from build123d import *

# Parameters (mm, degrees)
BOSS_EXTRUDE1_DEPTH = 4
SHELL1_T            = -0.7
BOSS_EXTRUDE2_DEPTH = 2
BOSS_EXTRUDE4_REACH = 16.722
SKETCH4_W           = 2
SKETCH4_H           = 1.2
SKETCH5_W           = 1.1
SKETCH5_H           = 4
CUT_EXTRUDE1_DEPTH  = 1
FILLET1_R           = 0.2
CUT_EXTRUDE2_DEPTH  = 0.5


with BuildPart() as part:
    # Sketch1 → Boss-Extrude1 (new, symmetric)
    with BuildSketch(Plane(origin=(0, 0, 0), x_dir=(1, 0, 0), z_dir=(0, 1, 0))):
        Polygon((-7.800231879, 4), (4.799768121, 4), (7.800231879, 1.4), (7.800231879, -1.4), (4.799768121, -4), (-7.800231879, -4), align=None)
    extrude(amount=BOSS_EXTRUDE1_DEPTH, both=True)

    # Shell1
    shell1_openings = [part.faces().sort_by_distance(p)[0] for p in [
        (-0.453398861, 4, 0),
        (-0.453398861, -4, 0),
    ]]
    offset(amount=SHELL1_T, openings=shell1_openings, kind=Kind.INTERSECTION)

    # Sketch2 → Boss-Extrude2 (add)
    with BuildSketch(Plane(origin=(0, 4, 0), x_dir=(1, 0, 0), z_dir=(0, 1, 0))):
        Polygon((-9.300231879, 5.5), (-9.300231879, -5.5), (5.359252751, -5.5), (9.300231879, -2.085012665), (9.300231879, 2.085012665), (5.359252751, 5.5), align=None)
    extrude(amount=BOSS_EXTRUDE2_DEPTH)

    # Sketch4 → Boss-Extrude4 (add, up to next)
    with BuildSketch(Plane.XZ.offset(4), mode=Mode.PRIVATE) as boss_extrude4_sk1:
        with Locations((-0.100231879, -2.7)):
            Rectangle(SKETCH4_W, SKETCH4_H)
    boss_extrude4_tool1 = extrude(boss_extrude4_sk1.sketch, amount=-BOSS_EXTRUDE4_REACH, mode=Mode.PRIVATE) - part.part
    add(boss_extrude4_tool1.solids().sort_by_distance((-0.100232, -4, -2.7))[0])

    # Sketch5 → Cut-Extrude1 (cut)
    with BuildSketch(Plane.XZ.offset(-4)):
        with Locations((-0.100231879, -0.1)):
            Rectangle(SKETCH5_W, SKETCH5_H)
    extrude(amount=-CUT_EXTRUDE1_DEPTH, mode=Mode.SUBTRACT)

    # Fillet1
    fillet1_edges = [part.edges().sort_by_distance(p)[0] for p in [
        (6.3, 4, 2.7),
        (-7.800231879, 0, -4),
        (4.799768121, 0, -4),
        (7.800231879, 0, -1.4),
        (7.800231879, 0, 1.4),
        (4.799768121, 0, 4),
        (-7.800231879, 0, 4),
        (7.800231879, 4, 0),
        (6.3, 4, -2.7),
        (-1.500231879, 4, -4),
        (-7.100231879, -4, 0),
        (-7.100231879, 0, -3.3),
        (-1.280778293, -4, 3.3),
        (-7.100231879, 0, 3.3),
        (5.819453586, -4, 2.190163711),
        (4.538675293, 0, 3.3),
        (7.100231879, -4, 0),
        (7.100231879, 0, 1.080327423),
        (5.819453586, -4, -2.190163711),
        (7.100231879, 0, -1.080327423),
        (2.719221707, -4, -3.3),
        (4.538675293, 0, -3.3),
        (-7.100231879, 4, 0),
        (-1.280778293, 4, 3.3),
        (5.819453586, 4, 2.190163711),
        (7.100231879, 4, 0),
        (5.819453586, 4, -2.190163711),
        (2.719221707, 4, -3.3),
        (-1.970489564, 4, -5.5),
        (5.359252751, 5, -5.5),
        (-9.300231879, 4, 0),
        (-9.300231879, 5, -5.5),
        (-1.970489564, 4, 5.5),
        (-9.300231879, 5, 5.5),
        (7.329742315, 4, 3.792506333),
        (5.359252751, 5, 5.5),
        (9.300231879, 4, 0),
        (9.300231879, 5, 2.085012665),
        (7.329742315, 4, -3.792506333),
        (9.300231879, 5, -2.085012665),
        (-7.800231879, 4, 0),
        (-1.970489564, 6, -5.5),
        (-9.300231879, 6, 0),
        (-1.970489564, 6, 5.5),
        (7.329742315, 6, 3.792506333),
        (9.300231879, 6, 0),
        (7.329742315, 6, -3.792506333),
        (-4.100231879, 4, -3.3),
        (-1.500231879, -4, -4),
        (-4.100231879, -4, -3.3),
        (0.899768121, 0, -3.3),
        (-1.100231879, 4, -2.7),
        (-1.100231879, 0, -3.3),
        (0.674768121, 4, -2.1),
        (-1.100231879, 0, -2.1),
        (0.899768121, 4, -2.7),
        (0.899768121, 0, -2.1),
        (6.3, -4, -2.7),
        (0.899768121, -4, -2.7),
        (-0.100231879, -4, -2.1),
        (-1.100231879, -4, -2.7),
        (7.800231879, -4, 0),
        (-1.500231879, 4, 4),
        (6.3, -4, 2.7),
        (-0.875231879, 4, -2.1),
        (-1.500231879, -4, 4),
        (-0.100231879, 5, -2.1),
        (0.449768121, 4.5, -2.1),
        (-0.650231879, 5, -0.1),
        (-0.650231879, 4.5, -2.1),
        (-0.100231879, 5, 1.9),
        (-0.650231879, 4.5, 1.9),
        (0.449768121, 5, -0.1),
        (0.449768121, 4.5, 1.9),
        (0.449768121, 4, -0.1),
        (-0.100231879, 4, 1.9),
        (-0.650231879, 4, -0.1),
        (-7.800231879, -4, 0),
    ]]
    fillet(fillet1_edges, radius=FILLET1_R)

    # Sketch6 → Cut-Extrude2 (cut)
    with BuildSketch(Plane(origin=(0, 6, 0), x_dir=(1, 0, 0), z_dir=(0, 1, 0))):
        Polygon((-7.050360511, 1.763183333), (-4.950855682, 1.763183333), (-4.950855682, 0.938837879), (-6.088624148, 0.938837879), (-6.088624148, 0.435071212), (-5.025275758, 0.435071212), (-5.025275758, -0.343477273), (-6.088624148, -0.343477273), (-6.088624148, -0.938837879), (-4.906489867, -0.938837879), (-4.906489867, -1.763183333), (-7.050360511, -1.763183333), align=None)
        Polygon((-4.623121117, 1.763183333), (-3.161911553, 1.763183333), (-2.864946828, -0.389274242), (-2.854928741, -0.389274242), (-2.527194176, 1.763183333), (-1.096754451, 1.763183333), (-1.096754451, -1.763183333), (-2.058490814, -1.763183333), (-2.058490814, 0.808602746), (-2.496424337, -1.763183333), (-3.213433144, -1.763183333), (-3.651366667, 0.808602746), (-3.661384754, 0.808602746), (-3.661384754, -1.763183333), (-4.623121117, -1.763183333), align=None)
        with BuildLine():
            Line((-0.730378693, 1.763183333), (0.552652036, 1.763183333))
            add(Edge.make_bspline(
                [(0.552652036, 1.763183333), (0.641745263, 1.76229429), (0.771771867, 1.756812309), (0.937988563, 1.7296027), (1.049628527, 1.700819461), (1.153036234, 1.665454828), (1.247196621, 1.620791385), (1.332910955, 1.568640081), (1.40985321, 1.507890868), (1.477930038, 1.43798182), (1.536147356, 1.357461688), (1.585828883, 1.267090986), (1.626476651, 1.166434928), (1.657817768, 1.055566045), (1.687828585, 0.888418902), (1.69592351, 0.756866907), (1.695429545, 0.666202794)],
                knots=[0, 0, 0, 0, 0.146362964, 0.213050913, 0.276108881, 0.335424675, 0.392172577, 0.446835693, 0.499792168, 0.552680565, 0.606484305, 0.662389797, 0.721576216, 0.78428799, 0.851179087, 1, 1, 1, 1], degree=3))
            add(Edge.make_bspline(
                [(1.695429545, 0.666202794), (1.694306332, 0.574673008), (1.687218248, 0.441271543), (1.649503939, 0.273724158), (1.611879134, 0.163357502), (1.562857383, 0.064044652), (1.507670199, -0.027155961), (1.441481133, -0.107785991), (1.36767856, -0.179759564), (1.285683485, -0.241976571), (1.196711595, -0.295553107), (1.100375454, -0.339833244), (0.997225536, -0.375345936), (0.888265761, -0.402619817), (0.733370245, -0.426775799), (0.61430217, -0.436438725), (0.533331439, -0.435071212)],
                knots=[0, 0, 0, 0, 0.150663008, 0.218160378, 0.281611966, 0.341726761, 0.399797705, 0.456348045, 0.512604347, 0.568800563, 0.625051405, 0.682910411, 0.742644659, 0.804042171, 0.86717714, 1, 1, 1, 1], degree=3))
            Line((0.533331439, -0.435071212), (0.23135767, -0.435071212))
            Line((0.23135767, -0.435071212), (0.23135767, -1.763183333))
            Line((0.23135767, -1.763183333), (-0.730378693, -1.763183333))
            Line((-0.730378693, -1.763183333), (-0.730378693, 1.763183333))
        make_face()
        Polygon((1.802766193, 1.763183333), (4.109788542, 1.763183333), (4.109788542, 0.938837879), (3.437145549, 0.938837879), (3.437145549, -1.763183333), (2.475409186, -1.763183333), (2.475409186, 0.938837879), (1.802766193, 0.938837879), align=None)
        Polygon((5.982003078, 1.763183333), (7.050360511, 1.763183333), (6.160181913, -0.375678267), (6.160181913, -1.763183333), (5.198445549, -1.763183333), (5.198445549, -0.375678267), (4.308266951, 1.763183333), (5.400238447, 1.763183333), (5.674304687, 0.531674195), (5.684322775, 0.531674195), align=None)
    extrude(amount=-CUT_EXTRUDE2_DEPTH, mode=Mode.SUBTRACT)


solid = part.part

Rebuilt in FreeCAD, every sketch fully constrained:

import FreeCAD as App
import Part
import Sketcher
from FreeCAD import Vector
Q = App.Units.Quantity


def faces_at(feature, points):
    """Names of the faces that lie closest to the given points."""
    faces = feature.Shape.Faces
    near = lambda p: min(range(len(faces)), key=lambda i: faces[i].distToShape(Part.Vertex(*p))[0])
    return sorted({f"Face{near(p) + 1}" for p in points})


def add_polygon(sketch, points):
    """Adds a closed chain of lines whose ends are joined by coincident constraints."""
    first, n = sketch.GeometryCount, len(points)
    for a, b in zip(points, points[1:] + points[:1]):
        sketch.addGeometry(Part.LineSegment(App.Vector(*a, 0), App.Vector(*b, 0)), False)
    for i in range(n):
        sketch.addConstraint(Sketcher.Constraint("Coincident", first + i, 2, first + (i + 1) % n, 1))

doc = App.newDocument("Part")
params = doc.addObject("Spreadsheet::Sheet", "Params")
for row, (alias, value) in enumerate([
    ("sketch1_height", "8 mm"),
    ("sketch1_width", "12.6 mm"),
    ("sketch1_height2", "2.8 mm"),
    ("pad1_length", "8 mm"),
    ("thickness_wall", "0.7 mm"),
    ("sketch2_height", "11 mm"),
    ("pad2_length", "2 mm"),
    ("sketch3_width", "2 mm"),
    ("sketch3_height", "1.2 mm"),
    ("sketch4_height", "4 mm"),
    ("sketch4_width", "1.1 mm"),
    ("pocket1_length", "1 mm"),
    ("fillet_radius", "0.2 mm"),
    ("pocket2_length", "0.5 mm"),
], start=1):
    params.set(f"A{row}", alias)
    params.set(f"B{row}", "=" + value)
    params.setAlias(f"B{row}", alias)

body = doc.addObject("PartDesign::Body", "Body")

sketch1 = body.newObject("Sketcher::SketchObject", "Sketch")
sketch1.AttachmentSupport = (doc.getObject("XZ_Plane"), [""])
sketch1.MapMode = "FlatFace"
add_polygon(sketch1, [(4.8, -4), (-7.8, -4), (-7.8, 4), (4.8, 4), (7.8, 1.4), (7.8, -1.4)])
sketch1.addConstraint([
    Sketcher.Constraint("Horizontal", 0),
    Sketcher.Constraint("Vertical", 1),
    Sketcher.Constraint("Horizontal", 2),
    Sketcher.Constraint("Vertical", 4),
    Sketcher.Constraint("Symmetric", 2, 2, 5, 2, -1),
    Sketcher.Constraint("Equal", 3, 5),
    Sketcher.Constraint("DistanceY", 1, 1, 1, 2, Q("8 mm")),
    Sketcher.Constraint("DistanceX", 0, 2, 0, 1, Q("12.6 mm")),
    Sketcher.Constraint("DistanceY", 4, 2, 4, 1, Q("2.8 mm")),
    Sketcher.Constraint("Angle", 3, Q("-40.91 deg")),
    Sketcher.Constraint("DistanceX", 0, 2, -1, 1, Q("7.800232 mm")),
])
sketch1.setExpression("Constraints[12]", "Params.sketch1_height")
sketch1.setExpression("Constraints[13]", "Params.sketch1_width")
sketch1.setExpression("Constraints[14]", "Params.sketch1_height2")
pad1 = body.newObject("PartDesign::Pad", "Pad")
pad1.Profile = sketch1
pad1.setExpression("Length", "Params.pad1_length")
pad1.Midplane = True
doc.recompute()

thickness = body.newObject("PartDesign::Thickness", "Thickness")
thickness.Base = (pad1, faces_at(pad1, [(0, 4, 0), (0, -4, 0)]))
thickness.setExpression("Value", "Params.thickness_wall")
thickness.Reversed = True
thickness.Join = "Intersection"

sketch2 = body.newObject("Sketcher::SketchObject", "Sketch001")
sketch2.AttachmentSupport = (doc.getObject("XZ_Plane"), [""])
sketch2.MapMode = "FlatFace"
sketch2.AttachmentOffset = App.Placement(Vector(0, 0, -4), App.Rotation())
add_polygon(sketch2, [(-9.3, -5.5), (-9.3, 5.5), (5.4, 5.5), (9.3, 2.1), (9.3, -2.1), (5.4, -5.5)])
sketch2.addConstraint([
    Sketcher.Constraint("Vertical", 0),
    Sketcher.Constraint("Horizontal", 1),
    Sketcher.Constraint("Vertical", 3),
    Sketcher.Constraint("Horizontal", 5),
    Sketcher.Constraint("Symmetric", 1, 2, 4, 2, -1),
    Sketcher.Constraint("Equal", 2, 4),
    Sketcher.Constraint("DistanceY", 0, 1, 0, 2, Q("11 mm")),
    Sketcher.Constraint("Angle", 2, Q("-40.91 deg")),
    Sketcher.Constraint("DistanceX", 1, 1, 1, 2, Q("14.659485 mm")),
    Sketcher.Constraint("DistanceY", 3, 2, 3, 1, Q("4.170025 mm")),
    Sketcher.Constraint("DistanceX", 0, 2, -1, 1, Q("9.300232 mm")),
])
sketch2.setExpression("Constraints[12]", "Params.sketch2_height")
pad2 = body.newObject("PartDesign::Pad", "Pad001")
pad2.Profile = sketch2
pad2.setExpression("Length", "Params.pad2_length")
pad2.Reversed = True

sketch3 = body.newObject("Sketcher::SketchObject", "Sketch002")
sketch3.AttachmentSupport = (doc.getObject("XZ_Plane"), [""])
sketch3.MapMode = "FlatFace"
sketch3.AttachmentOffset = App.Placement(Vector(0, 0, 4), App.Rotation())
add_polygon(sketch3, [(-1.1, -2.1), (-1.1, -3.3), (0.9, -3.3), (0.9, -2.1)])
sketch3.addConstraint([
    Sketcher.Constraint("Vertical", 0),
    Sketcher.Constraint("Horizontal", 1),
    Sketcher.Constraint("Vertical", 2),
    Sketcher.Constraint("Horizontal", 3),
    Sketcher.Constraint("DistanceX", 1, 1, 1, 2, Q("2 mm")),
    Sketcher.Constraint("DistanceY", 0, 2, 0, 1, Q("1.2 mm")),
    Sketcher.Constraint("DistanceY", 0, 2, -1, 1, Q("3.3 mm")),
    Sketcher.Constraint("DistanceX", 0, 2, -1, 1, Q("1.100232 mm")),
])
sketch3.setExpression("Constraints[8]", "Params.sketch3_width")
sketch3.setExpression("Constraints[9]", "Params.sketch3_height")
pad3 = body.newObject("PartDesign::Pad", "Pad002")
pad3.Profile = sketch3
pad3.Type = "UpToFirst"
pad3.Reversed = True

sketch4 = body.newObject("Sketcher::SketchObject", "Sketch003")
sketch4.AttachmentSupport = (doc.getObject("XZ_Plane"), [""])
sketch4.MapMode = "FlatFace"
sketch4.AttachmentOffset = App.Placement(Vector(0, 0, -4), App.Rotation())
add_polygon(sketch4, [(-0.7, 1.9), (-0.7, -2.1), (0.4, -2.1), (0.4, 1.9)])
sketch4.addConstraint([
    Sketcher.Constraint("Vertical", 0),
    Sketcher.Constraint("Horizontal", 1),
    Sketcher.Constraint("Vertical", 2),
    Sketcher.Constraint("Horizontal", 3),
    Sketcher.Constraint("DistanceY", 0, 2, 0, 1, Q("4 mm")),
    Sketcher.Constraint("DistanceX", 1, 1, 1, 2, Q("1.1 mm")),
    Sketcher.Constraint("DistanceY", 0, 2, -1, 1, Q("2.1 mm")),
    Sketcher.Constraint("DistanceX", 0, 2, -1, 1, Q("0.650232 mm")),
])
sketch4.setExpression("Constraints[8]", "Params.sketch4_height")
sketch4.setExpression("Constraints[9]", "Params.sketch4_width")
pocket1 = body.newObject("PartDesign::Pocket", "Pocket")
pocket1.Profile = sketch4
pocket1.setExpression("Length", "Params.pocket1_length")
doc.recompute()

fillet = body.newObject("PartDesign::Fillet", "Fillet")
fillet.Base = (pocket1, ["Edge1"])
fillet.UseAllEdges = True
fillet.setExpression("Radius", "Params.fillet_radius")

sketch5 = body.newObject("Sketcher::SketchObject", "Sketch004")
sketch5.AttachmentSupport = (doc.getObject("XZ_Plane"), [""])
sketch5.MapMode = "FlatFace"
sketch5.AttachmentOffset = App.Placement(Vector(0, 0, -6), App.Rotation())
add_polygon(sketch5, [(-4.950856, -1.763183), (-7.050361, -1.763183), (-7.050361, 1.763183), (-4.90649, 1.763183), (-4.90649, 0.938838), (-6.088624, 0.938838), (-6.088624, 0.343477), (-5.025276, 0.343477), (-5.025276, -0.435071), (-6.088624, -0.435071), (-6.088624, -0.938838), (-4.950856, -0.938838)])
add_polygon(sketch5, [(-3.161912, -1.763183), (-4.623121, -1.763183), (-4.623121, 1.763183), (-3.661385, 1.763183), (-3.661385, -0.808603), (-3.651367, -0.808603), (-3.213433, 1.763183), (-2.496424, 1.763183), (-2.058491, -0.808603), (-2.058491, 1.763183), (-1.096754, 1.763183), (-1.096754, -1.763183), (-2.527194, -1.763183), (-2.854929, 0.389274), (-2.864947, 0.389274)])
sketch5.addGeometry(Part.LineSegment(Vector(0.552652, -1.763183, 0), Vector(-0.730379, -1.763183, 0)), False)
sketch5.addGeometry(Part.LineSegment(Vector(-0.730379, -1.763183, 0), Vector(-0.730379, 1.763183, 0)), False)
sketch5.addGeometry(Part.LineSegment(Vector(-0.730379, 1.763183, 0), Vector(0.231358, 1.763183, 0)), False)
sketch5.addGeometry(Part.LineSegment(Vector(0.231358, 1.763183, 0), Vector(0.231358, 0.435071, 0)), False)
sketch5.addGeometry(Part.LineSegment(Vector(0.231358, 0.435071, 0), Vector(0.533331, 0.435071, 0)), False)
sketch5.addGeometry(Part.BSplineCurve([Vector(1.69543, -0.666203, 0), Vector(1.694306, -0.574673, 0), Vector(1.687218, -0.441272, 0), Vector(1.649504, -0.273724, 0), Vector(1.611879, -0.163358, 0), Vector(1.562857, -0.064045, 0), Vector(1.50767, 0.027156, 0), Vector(1.441481, 0.107786, 0), Vector(1.367679, 0.17976, 0), Vector(1.285683, 0.241977, 0), Vector(1.196712, 0.295553, 0), Vector(1.100375, 0.339833, 0), Vector(0.997226, 0.375346, 0), Vector(0.888266, 0.40262, 0), Vector(0.73337, 0.426776, 0), Vector(0.614302, 0.436439, 0), Vector(0.533331, 0.435071, 0)], [4, 1, 1, 1, 1, 1, 1, 1, 1, 1, 1, 1, 1, 1, 4], [0, 0.150663008, 0.218160378, 0.281611966, 0.341726761, 0.399797705, 0.456348045, 0.512604347, 0.568800563, 0.625051405, 0.682910411, 0.742644659, 0.804042171, 0.86717714, 1], False, 3, [1, 1, 1, 1, 1, 1, 1, 1, 1, 1, 1, 1, 1, 1, 1, 1, 1], False), False)
sketch5.addGeometry(Part.BSplineCurve([Vector(0.552652, -1.763183, 0), Vector(0.641745, -1.762294, 0), Vector(0.771772, -1.756812, 0), Vector(0.937989, -1.729603, 0), Vector(1.049629, -1.700819, 0), Vector(1.153036, -1.665455, 0), Vector(1.247197, -1.620791, 0), Vector(1.332911, -1.56864, 0), Vector(1.409853, -1.507891, 0), Vector(1.47793, -1.437982, 0), Vector(1.536147, -1.357462, 0), Vector(1.585829, -1.267091, 0), Vector(1.626477, -1.166435, 0), Vector(1.657818, -1.055566, 0), Vector(1.687829, -0.888419, 0), Vector(1.695924, -0.756867, 0), Vector(1.69543, -0.666203, 0)], [4, 1, 1, 1, 1, 1, 1, 1, 1, 1, 1, 1, 1, 1, 4], [0, 0.146362964, 0.213050913, 0.276108881, 0.335424675, 0.392172577, 0.446835693, 0.499792168, 0.552680565, 0.606484305, 0.662389797, 0.721576216, 0.78428799, 0.851179087, 1], False, 3, [1, 1, 1, 1, 1, 1, 1, 1, 1, 1, 1, 1, 1, 1, 1, 1, 1], False), False)
add_polygon(sketch5, [(4.109789, -1.763183), (1.802766, -1.763183), (1.802766, -0.938838), (2.475409, -0.938838), (2.475409, 1.763183), (3.437146, 1.763183), (3.437146, -0.938838), (4.109789, -0.938838)])
add_polygon(sketch5, [(7.050361, -1.763183), (5.982003, -1.763183), (5.684323, -0.531674), (5.674305, -0.531674), (5.400238, -1.763183), (4.308267, -1.763183), (5.198446, 0.375678), (5.198446, 1.763183), (6.160182, 1.763183), (6.160182, 0.375678)])
sketch5.addConstraint([
    Sketcher.Constraint("Block", 32),
    Sketcher.Constraint("Block", 33),
    Sketcher.Constraint("Coincident", 27, 2, 28, 1),
    Sketcher.Constraint("Coincident", 28, 2, 29, 1),
    Sketcher.Constraint("Coincident", 29, 2, 30, 1),
    Sketcher.Constraint("Coincident", 30, 2, 31, 1),
    Sketcher.Constraint("Coincident", 31, 2, 32, 2),
    Sketcher.Constraint("Coincident", 33, 1, 27, 1),
    Sketcher.Constraint("Horizontal", 0),
    Sketcher.Constraint("Vertical", 1),
    Sketcher.Constraint("Horizontal", 2),
    Sketcher.Constraint("Vertical", 3),
    Sketcher.Constraint("Horizontal", 4),
    Sketcher.Constraint("Vertical", 5),
    Sketcher.Constraint("Horizontal", 6),
    Sketcher.Constraint("Vertical", 7),
    Sketcher.Constraint("Horizontal", 8),
    Sketcher.Constraint("Vertical", 9),
    Sketcher.Constraint("Horizontal", 10),
    Sketcher.Constraint("Vertical", 11),
    Sketcher.Constraint("Horizontal", 12),
    Sketcher.Constraint("Vertical", 13),
    Sketcher.Constraint("Horizontal", 14),
    Sketcher.Constraint("Vertical", 15),
    Sketcher.Constraint("Horizontal", 16),
    Sketcher.Constraint("Horizontal", 18),
    Sketcher.Constraint("Vertical", 20),
    Sketcher.Constraint("Horizontal", 21),
    Sketcher.Constraint("Vertical", 22),
    Sketcher.Constraint("Horizontal", 23),
    Sketcher.Constraint("Horizontal", 25),
    Sketcher.Constraint("Horizontal", 27),
    Sketcher.Constraint("Vertical", 28),
    Sketcher.Constraint("Horizontal", 29),
    Sketcher.Constraint("Vertical", 30),
    Sketcher.Constraint("Horizontal", 31),
    Sketcher.Constraint("Horizontal", 34),
    Sketcher.Constraint("Vertical", 35),
    Sketcher.Constraint("Horizontal", 36),
    Sketcher.Constraint("Vertical", 37),
    Sketcher.Constraint("Horizontal", 38),
    Sketcher.Constraint("Vertical", 39),
    Sketcher.Constraint("Horizontal", 40),
    Sketcher.Constraint("Vertical", 41),
    Sketcher.Constraint("Horizontal", 42),
    Sketcher.Constraint("Horizontal", 44),
    Sketcher.Constraint("Horizontal", 46),
    Sketcher.Constraint("Vertical", 48),
    Sketcher.Constraint("Horizontal", 49),
    Sketcher.Constraint("Vertical", 50),
    Sketcher.Constraint("Symmetric", 1, 2, 51, 2, -1, 1),
    Sketcher.Constraint("Symmetric", 4, 2, 9, 2, -1),
    Sketcher.Constraint("Horizontal", 11, 2, 12, 2),
    Sketcher.Constraint("Horizontal", 2, 2, 13, 2),
    Sketcher.Constraint("Horizontal", 14, 2, 17, 2),
    Sketcher.Constraint("Horizontal", 16, 2, 19, 2),
    Sketcher.Constraint("Horizontal", 18, 2, 20, 2),
    Sketcher.Constraint("Horizontal", 12, 2, 22, 2),
    Sketcher.Constraint("Horizontal", 26, 2, 27, 2),
    Sketcher.Constraint("Horizontal", 21, 2, 28, 2),
    Sketcher.Constraint("Horizontal", 27, 2, 34, 2),
    Sketcher.Constraint("Horizontal", 10, 2, 35, 2),
    Sketcher.Constraint("Horizontal", 29, 2, 37, 2),
    Sketcher.Constraint("Horizontal", 36, 2, 39, 2),
    Sketcher.Constraint("Horizontal", 41, 2, 42, 2),
    Sketcher.Constraint("Horizontal", 42, 2, 45, 2),
    Sketcher.Constraint("Horizontal", 38, 2, 48, 2),
    Sketcher.Constraint("Horizontal", 47, 2, 50, 2),
    Sketcher.Constraint("Equal", 14, 21),
    Sketcher.Constraint("Equal", 16, 25),
    Sketcher.Constraint("Equal", 21, 29),
    Sketcher.Constraint("Equal", 29, 38),
    Sketcher.Constraint("Equal", 36, 40),
    Sketcher.Constraint("Equal", 25, 44),
    Sketcher.Constraint("Equal", 38, 49),
    Sketcher.Constraint("Equal", 17, 19),
    Sketcher.Constraint("Equal", 47, 51),
    Sketcher.Constraint("DistanceX", 2, 1, 2, 2, Q("2.143871 mm")),
    Sketcher.Constraint("DistanceX", 6, 1, 6, 2, Q("1.063348 mm")),
    Sketcher.Constraint("DistanceX", 10, 1, 10, 2, Q("1.137768 mm")),
    Sketcher.Constraint("DistanceX", 12, 2, 12, 1, Q("1.46121 mm")),
    Sketcher.Constraint("DistanceX", 16, 1, 16, 2, Q("0.010018 mm")),
    Sketcher.Constraint("DistanceX", 18, 1, 18, 2, Q("0.717009 mm")),
    Sketcher.Constraint("DistanceX", 23, 2, 23, 1, Q("1.43044 mm")),
    Sketcher.Constraint("DistanceX", 27, 2, 27, 1, Q("1.283031 mm")),
    Sketcher.Constraint("DistanceX", 46, 2, 46, 1, Q("1.091971 mm")),
    Sketcher.Constraint("DistanceY", 5, 2, 5, 1, Q("0.595361 mm")),
    Sketcher.Constraint("DistanceY", 7, 2, 7, 1, Q("0.778548 mm")),
    Sketcher.Constraint("DistanceY", 37, 1, 37, 2, Q("2.702021 mm")),
    Sketcher.Constraint("DistanceX", 44, 2, 42, 2, Q("0.307698 mm")),
    Sketcher.Constraint("DistanceX", 39, 2, 47, 2, Q("1.7613 mm")),
    Sketcher.Constraint("Distance", 47, Q("2.31671 mm")),
    Sketcher.Constraint("DistanceX", 0, 2, 0, 1, Q("2.099505 mm")),
    Sketcher.Constraint("DistanceX", 14, 1, 14, 2, Q("0.961736 mm")),
    Sketcher.Constraint("DistanceX", 34, 2, 34, 1, Q("2.307022 mm")),
    Sketcher.Constraint("DistanceX", 42, 2, 42, 1, Q("1.068357 mm")),
    Sketcher.Constraint("DistanceY", 15, 2, 15, 1, Q("2.571786 mm")),
    Sketcher.Constraint("DistanceY", 48, 1, 48, 2, Q("1.387505 mm")),
    Sketcher.Constraint("DistanceX", 0, 2, -1, 1, Q("7.050361 mm")),
    Sketcher.Constraint("DistanceX", 12, 2, -1, 1, Q("4.623121 mm")),
    Sketcher.Constraint("DistanceX", 19, 2, -1, 1, Q("2.058491 mm")),
    Sketcher.Constraint("DistanceX", 24, 2, -1, 1, Q("2.854929 mm")),
    Sketcher.Constraint("DistanceY", 24, 2, 17, 2, Q("1.373909 mm")),
    Sketcher.Constraint("DistanceY", 42, 2, 43, 2, Q("1.231509 mm")),
])
pocket2 = body.newObject("PartDesign::Pocket", "Pocket001")
pocket2.Profile = sketch5
pocket2.setExpression("Length", "Params.pocket2_length")
pocket2.Reversed = True

doc.recompute()
